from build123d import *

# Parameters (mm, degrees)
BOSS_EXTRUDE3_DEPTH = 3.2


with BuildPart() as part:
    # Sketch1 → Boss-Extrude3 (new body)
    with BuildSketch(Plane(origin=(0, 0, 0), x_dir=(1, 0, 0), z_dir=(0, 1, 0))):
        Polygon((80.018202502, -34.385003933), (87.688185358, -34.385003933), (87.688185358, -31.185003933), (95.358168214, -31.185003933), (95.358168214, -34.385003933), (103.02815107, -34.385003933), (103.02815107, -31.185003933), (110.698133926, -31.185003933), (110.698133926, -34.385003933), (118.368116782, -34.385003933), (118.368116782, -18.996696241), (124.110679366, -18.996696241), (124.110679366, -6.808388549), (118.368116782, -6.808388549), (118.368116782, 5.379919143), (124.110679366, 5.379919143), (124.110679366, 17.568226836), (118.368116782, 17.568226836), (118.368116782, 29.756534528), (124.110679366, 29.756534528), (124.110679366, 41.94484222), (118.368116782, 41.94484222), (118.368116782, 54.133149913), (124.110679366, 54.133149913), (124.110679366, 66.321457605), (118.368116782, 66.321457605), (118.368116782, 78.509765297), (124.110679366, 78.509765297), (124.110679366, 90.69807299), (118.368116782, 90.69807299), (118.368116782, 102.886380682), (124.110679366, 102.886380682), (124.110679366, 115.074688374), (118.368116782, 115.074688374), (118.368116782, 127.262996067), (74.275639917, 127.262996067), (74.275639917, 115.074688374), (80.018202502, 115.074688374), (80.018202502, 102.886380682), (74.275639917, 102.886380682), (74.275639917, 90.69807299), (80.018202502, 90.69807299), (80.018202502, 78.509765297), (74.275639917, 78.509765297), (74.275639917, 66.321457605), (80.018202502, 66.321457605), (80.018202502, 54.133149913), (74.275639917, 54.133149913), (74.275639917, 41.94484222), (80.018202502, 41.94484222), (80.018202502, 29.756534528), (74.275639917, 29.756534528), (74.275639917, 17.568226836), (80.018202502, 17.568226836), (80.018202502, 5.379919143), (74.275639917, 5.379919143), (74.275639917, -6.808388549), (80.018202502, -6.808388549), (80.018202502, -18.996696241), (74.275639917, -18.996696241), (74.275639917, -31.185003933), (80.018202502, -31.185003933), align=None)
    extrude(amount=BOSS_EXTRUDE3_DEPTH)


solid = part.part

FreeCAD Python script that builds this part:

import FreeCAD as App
import Part
import Sketcher

V = App.Vector


def add_polygon(sketch, points):
    """Adds a closed chain of lines whose ends are joined by coincident constraints."""
    first, n = sketch.GeometryCount, len(points)
    for a, b in zip(points, points[1:] + points[:1]):
        sketch.addGeometry(Part.LineSegment(App.Vector(*a, 0), App.Vector(*b, 0)), False)
    for i in range(n):
        sketch.addConstraint(Sketcher.Constraint("Coincident", first + i, 2, first + (i + 1) % n, 1))

doc = App.newDocument("Part")
body = doc.addObject("PartDesign::Body", "Body")

sketch1 = doc.addObject("Sketcher::SketchObject", "Sketch")
body.addObject(sketch1)
sketch1.AttachmentSupport = (doc.XZ_Plane, [""])
sketch1.MapMode = "FlatFace"
add_polygon(sketch1, [(80.018203, 34.385004), (87.688185, 34.385004), (87.688185, 31.185004), (95.358168, 31.185004), (95.358168, 34.385004), (103.028151, 34.385004), (103.028151, 31.185004), (110.698134, 31.185004), (110.698134, 34.385004), (118.368117, 34.385004), (118.368117, 18.996696), (124.110679, 18.996696), (124.110679, 6.808389), (118.368117, 6.808389), (118.368117, -5.379919), (124.110679, -5.379919), (124.110679, -17.568227), (118.368117, -17.568227), (118.368117, -29.756535), (124.110679, -29.756535), (124.110679, -41.944842), (118.368117, -41.944842), (118.368117, -54.13315), (124.110679, -54.13315), (124.110679, -66.321458), (118.368117, -66.321458), (118.368117, -78.509765), (124.110679, -78.509765), (124.110679, -90.698073), (118.368117, -90.698073), (118.368117, -102.886381), (124.110679, -102.886381), (124.110679, -115.074688), (118.368117, -115.074688), (118.368117, -127.262996), (74.27564, -127.262996), (74.27564, -115.074688), (80.018203, -115.074688), (80.018203, -102.886381), (74.27564, -102.886381), (74.27564, -90.698073), (80.018203, -90.698073), (80.018203, -78.509765), (74.27564, -78.509765), (74.27564, -66.321458), (80.018203, -66.321458), (80.018203, -54.13315), (74.27564, -54.13315), (74.27564, -41.944842), (80.018203, -41.944842), (80.018203, -29.756535), (74.27564, -29.756535), (74.27564, -17.568227), (80.018203, -17.568227), (80.018203, -5.379919), (74.27564, -5.379919), (74.27564, 6.808389), (80.018203, 6.808389), (80.018203, 18.996696), (74.27564, 18.996696), (74.27564, 31.185004), (80.018203, 31.185004)])
sketch1.addConstraint([
    Sketcher.Constraint("Horizontal", 0),
    Sketcher.Constraint("Vertical", 1),
    Sketcher.Constraint("Horizontal", 2),
    Sketcher.Constraint("Vertical", 3),
    Sketcher.Constraint("Horizontal", 4),
    Sketcher.Constraint("Vertical", 5),
    Sketcher.Constraint("Horizontal", 6),
    Sketcher.Constraint("Vertical", 7),
    Sketcher.Constraint("Horizontal", 8),
    Sketcher.Constraint("Vertical", 9),
    Sketcher.Constraint("Horizontal", 10),
    Sketcher.Constraint("Vertical", 11),
    Sketcher.Constraint("Horizontal", 12),
    Sketcher.Constraint("Vertical", 13),
    Sketcher.Constraint("Horizontal", 14),
    Sketcher.Constraint("Vertical", 15),
    Sketcher.Constraint("Horizontal", 16),
    Sketcher.Constraint("Vertical", 17),
    Sketcher.Constraint("Horizontal", 18),
    Sketcher.Constraint("Vertical", 19),
    Sketcher.Constraint("Horizontal", 20),
    Sketcher.Constraint("Vertical", 21),
    Sketcher.Constraint("Horizontal", 22),
    Sketcher.Constraint("Vertical", 23),
    Sketcher.Constraint("Horizontal", 24),
    Sketcher.Constraint("Vertical", 25),
    Sketcher.Constraint("Horizontal", 26),
    Sketcher.Constraint("Vertical", 27),
    Sketcher.Constraint("Horizontal", 28),
    Sketcher.Constraint("Vertical", 29),
    Sketcher.Constraint("Horizontal", 30),
    Sketcher.Constraint("Vertical", 31),
    Sketcher.Constraint("Horizontal", 32),
    Sketcher.Constraint("Vertical", 33),
    Sketcher.Constraint("Horizontal", 34),
    Sketcher.Constraint("Vertical", 35),
    Sketcher.Constraint("Horizontal", 36),
    Sketcher.Constraint("Vertical", 37),
    Sketcher.Constraint("Horizontal", 38),
    Sketcher.Constraint("Vertical", 39),
    Sketcher.Constraint("Horizontal", 40),
    Sketcher.Constraint("Vertical", 41),
    Sketcher.Constraint("Horizontal", 42),
    Sketcher.Constraint("Vertical", 43),
    Sketcher.Constraint("Horizontal", 44),
    Sketcher.Constraint("Vertical", 45),
    Sketcher.Constraint("Horizontal", 46),
    Sketcher.Constraint("Vertical", 47),
    Sketcher.Constraint("Horizontal", 48),
    Sketcher.Constraint("Vertical", 49),
    Sketcher.Constraint("Horizontal", 50),
    Sketcher.Constraint("Vertical", 51),
    Sketcher.Constraint("Horizontal", 52),
    Sketcher.Constraint("Vertical", 53),
    Sketcher.Constraint("Horizontal", 54),
    Sketcher.Constraint("Vertical", 55),
    Sketcher.Constraint("Horizontal", 56),
    Sketcher.Constraint("Vertical", 57),
    Sketcher.Constraint("Horizontal", 58),
    Sketcher.Constraint("Vertical", 59),
    Sketcher.Constraint("Horizontal", 60),
    Sketcher.Constraint("Vertical", 61),
    Sketcher.Constraint("Horizontal", 0, 2, 3, 2),
    Sketcher.Constraint("Horizontal", 2, 2, 5, 2),
    Sketcher.Constraint("Horizontal", 4, 2, 7, 2),
    Sketcher.Constraint("Horizontal", 32, 2, 35, 2),
    Sketcher.Constraint("Horizontal", 30, 2, 37, 2),
    Sketcher.Constraint("Horizontal", 28, 2, 39, 2),
    Sketcher.Constraint("Horizontal", 26, 2, 41, 2),
    Sketcher.Constraint("Horizontal", 24, 2, 43, 2),
    Sketcher.Constraint("Horizontal", 22, 2, 45, 2),
    Sketcher.Constraint("Horizontal", 20, 2, 47, 2),
    Sketcher.Constraint("Horizontal", 18, 2, 49, 2),
    Sketcher.Constraint("Horizontal", 16, 2, 51, 2),
    Sketcher.Constraint("Horizontal", 14, 2, 53, 2),
    Sketcher.Constraint("Horizontal", 12, 2, 55, 2),
    Sketcher.Constraint("Horizontal", 10, 2, 57, 2),
    Sketcher.Constraint("Horizontal", 6, 2, 59, 2),
    Sketcher.Constraint("Vertical", 9, 2, 12, 2),
    Sketcher.Constraint("Vertical", 11, 2, 14, 2),
    Sketcher.Constraint("Vertical", 13, 2, 16, 2),
    Sketcher.Constraint("Vertical", 15, 2, 18, 2),
    Sketcher.Constraint("Vertical", 17, 2, 20, 2),
    Sketcher.Constraint("Vertical", 19, 2, 22, 2),
    Sketcher.Constraint("Vertical", 21, 2, 24, 2),
    Sketcher.Constraint("Vertical", 23, 2, 26, 2),
    Sketcher.Constraint("Vertical", 25, 2, 28, 2),
    Sketcher.Constraint("Vertical", 27, 2, 30, 2),
    Sketcher.Constraint("Vertical", 29, 2, 32, 2),
    Sketcher.Constraint("Vertical", 35, 2, 38, 2),
    Sketcher.Constraint("Vertical", 37, 2, 40, 2),
    Sketcher.Constraint("Vertical", 39, 2, 42, 2),
    Sketcher.Constraint("Vertical", 41, 2, 44, 2),
    Sketcher.Constraint("Vertical", 43, 2, 46, 2),
    Sketcher.Constraint("Vertical", 45, 2, 48, 2),
    Sketcher.Constraint("Vertical", 47, 2, 50, 2),
    Sketcher.Constraint("Vertical", 49, 2, 52, 2),
    Sketcher.Constraint("Vertical", 51, 2, 54, 2),
    Sketcher.Constraint("Vertical", 53, 2, 56, 2),
    Sketcher.Constraint("Vertical", 55, 2, 58, 2),
    Sketcher.Constraint("Vertical", 57, 2, 60, 2),
    Sketcher.Constraint("Equal", 0, 2),
    Sketcher.Constraint("Equal", 2, 4),
    Sketcher.Constraint("Equal", 4, 6),
    Sketcher.Constraint("Equal", 6, 8),
    Sketcher.Constraint("Equal", 32, 36),
    Sketcher.Constraint("Equal", 11, 13),
    Sketcher.Constraint("Equal", 13, 15),
    Sketcher.Constraint("Equal", 15, 17),
    Sketcher.Constraint("Equal", 17, 19),
    Sketcher.Constraint("Equal", 19, 21),
    Sketcher.Constraint("Equal", 21, 23),
    Sketcher.Constraint("Equal", 23, 25),
    Sketcher.Constraint("Equal", 25, 27),
    Sketcher.Constraint("Equal", 27, 29),
    Sketcher.Constraint("Equal", 29, 31),
    Sketcher.Constraint("Equal", 31, 33),
    Sketcher.Constraint("Equal", 57, 59),
    Sketcher.Constraint("DistanceY", 1, 2, 1, 1, 3.2),
    Sketcher.Constraint("DistanceX", 0, 1, 0, 2, 7.669983),
    Sketcher.Constraint("DistanceX", 10, 1, 10, 2, 5.742563),
    Sketcher.Constraint("DistanceY", 9, 2, 9, 1, 15.388308),
    Sketcher.Constraint("DistanceX", -1, 1, 2, 2, 95.358168),
    Sketcher.Constraint("DistanceY", -1, 1, 11, 2, 6.808389),
])
pad1 = doc.addObject("PartDesign::Pad", "Pad")
body.addObject(pad1)
pad1.Profile = sketch1
pad1.Length = 3.2
pad1.Reversed = True

doc.recompute()
